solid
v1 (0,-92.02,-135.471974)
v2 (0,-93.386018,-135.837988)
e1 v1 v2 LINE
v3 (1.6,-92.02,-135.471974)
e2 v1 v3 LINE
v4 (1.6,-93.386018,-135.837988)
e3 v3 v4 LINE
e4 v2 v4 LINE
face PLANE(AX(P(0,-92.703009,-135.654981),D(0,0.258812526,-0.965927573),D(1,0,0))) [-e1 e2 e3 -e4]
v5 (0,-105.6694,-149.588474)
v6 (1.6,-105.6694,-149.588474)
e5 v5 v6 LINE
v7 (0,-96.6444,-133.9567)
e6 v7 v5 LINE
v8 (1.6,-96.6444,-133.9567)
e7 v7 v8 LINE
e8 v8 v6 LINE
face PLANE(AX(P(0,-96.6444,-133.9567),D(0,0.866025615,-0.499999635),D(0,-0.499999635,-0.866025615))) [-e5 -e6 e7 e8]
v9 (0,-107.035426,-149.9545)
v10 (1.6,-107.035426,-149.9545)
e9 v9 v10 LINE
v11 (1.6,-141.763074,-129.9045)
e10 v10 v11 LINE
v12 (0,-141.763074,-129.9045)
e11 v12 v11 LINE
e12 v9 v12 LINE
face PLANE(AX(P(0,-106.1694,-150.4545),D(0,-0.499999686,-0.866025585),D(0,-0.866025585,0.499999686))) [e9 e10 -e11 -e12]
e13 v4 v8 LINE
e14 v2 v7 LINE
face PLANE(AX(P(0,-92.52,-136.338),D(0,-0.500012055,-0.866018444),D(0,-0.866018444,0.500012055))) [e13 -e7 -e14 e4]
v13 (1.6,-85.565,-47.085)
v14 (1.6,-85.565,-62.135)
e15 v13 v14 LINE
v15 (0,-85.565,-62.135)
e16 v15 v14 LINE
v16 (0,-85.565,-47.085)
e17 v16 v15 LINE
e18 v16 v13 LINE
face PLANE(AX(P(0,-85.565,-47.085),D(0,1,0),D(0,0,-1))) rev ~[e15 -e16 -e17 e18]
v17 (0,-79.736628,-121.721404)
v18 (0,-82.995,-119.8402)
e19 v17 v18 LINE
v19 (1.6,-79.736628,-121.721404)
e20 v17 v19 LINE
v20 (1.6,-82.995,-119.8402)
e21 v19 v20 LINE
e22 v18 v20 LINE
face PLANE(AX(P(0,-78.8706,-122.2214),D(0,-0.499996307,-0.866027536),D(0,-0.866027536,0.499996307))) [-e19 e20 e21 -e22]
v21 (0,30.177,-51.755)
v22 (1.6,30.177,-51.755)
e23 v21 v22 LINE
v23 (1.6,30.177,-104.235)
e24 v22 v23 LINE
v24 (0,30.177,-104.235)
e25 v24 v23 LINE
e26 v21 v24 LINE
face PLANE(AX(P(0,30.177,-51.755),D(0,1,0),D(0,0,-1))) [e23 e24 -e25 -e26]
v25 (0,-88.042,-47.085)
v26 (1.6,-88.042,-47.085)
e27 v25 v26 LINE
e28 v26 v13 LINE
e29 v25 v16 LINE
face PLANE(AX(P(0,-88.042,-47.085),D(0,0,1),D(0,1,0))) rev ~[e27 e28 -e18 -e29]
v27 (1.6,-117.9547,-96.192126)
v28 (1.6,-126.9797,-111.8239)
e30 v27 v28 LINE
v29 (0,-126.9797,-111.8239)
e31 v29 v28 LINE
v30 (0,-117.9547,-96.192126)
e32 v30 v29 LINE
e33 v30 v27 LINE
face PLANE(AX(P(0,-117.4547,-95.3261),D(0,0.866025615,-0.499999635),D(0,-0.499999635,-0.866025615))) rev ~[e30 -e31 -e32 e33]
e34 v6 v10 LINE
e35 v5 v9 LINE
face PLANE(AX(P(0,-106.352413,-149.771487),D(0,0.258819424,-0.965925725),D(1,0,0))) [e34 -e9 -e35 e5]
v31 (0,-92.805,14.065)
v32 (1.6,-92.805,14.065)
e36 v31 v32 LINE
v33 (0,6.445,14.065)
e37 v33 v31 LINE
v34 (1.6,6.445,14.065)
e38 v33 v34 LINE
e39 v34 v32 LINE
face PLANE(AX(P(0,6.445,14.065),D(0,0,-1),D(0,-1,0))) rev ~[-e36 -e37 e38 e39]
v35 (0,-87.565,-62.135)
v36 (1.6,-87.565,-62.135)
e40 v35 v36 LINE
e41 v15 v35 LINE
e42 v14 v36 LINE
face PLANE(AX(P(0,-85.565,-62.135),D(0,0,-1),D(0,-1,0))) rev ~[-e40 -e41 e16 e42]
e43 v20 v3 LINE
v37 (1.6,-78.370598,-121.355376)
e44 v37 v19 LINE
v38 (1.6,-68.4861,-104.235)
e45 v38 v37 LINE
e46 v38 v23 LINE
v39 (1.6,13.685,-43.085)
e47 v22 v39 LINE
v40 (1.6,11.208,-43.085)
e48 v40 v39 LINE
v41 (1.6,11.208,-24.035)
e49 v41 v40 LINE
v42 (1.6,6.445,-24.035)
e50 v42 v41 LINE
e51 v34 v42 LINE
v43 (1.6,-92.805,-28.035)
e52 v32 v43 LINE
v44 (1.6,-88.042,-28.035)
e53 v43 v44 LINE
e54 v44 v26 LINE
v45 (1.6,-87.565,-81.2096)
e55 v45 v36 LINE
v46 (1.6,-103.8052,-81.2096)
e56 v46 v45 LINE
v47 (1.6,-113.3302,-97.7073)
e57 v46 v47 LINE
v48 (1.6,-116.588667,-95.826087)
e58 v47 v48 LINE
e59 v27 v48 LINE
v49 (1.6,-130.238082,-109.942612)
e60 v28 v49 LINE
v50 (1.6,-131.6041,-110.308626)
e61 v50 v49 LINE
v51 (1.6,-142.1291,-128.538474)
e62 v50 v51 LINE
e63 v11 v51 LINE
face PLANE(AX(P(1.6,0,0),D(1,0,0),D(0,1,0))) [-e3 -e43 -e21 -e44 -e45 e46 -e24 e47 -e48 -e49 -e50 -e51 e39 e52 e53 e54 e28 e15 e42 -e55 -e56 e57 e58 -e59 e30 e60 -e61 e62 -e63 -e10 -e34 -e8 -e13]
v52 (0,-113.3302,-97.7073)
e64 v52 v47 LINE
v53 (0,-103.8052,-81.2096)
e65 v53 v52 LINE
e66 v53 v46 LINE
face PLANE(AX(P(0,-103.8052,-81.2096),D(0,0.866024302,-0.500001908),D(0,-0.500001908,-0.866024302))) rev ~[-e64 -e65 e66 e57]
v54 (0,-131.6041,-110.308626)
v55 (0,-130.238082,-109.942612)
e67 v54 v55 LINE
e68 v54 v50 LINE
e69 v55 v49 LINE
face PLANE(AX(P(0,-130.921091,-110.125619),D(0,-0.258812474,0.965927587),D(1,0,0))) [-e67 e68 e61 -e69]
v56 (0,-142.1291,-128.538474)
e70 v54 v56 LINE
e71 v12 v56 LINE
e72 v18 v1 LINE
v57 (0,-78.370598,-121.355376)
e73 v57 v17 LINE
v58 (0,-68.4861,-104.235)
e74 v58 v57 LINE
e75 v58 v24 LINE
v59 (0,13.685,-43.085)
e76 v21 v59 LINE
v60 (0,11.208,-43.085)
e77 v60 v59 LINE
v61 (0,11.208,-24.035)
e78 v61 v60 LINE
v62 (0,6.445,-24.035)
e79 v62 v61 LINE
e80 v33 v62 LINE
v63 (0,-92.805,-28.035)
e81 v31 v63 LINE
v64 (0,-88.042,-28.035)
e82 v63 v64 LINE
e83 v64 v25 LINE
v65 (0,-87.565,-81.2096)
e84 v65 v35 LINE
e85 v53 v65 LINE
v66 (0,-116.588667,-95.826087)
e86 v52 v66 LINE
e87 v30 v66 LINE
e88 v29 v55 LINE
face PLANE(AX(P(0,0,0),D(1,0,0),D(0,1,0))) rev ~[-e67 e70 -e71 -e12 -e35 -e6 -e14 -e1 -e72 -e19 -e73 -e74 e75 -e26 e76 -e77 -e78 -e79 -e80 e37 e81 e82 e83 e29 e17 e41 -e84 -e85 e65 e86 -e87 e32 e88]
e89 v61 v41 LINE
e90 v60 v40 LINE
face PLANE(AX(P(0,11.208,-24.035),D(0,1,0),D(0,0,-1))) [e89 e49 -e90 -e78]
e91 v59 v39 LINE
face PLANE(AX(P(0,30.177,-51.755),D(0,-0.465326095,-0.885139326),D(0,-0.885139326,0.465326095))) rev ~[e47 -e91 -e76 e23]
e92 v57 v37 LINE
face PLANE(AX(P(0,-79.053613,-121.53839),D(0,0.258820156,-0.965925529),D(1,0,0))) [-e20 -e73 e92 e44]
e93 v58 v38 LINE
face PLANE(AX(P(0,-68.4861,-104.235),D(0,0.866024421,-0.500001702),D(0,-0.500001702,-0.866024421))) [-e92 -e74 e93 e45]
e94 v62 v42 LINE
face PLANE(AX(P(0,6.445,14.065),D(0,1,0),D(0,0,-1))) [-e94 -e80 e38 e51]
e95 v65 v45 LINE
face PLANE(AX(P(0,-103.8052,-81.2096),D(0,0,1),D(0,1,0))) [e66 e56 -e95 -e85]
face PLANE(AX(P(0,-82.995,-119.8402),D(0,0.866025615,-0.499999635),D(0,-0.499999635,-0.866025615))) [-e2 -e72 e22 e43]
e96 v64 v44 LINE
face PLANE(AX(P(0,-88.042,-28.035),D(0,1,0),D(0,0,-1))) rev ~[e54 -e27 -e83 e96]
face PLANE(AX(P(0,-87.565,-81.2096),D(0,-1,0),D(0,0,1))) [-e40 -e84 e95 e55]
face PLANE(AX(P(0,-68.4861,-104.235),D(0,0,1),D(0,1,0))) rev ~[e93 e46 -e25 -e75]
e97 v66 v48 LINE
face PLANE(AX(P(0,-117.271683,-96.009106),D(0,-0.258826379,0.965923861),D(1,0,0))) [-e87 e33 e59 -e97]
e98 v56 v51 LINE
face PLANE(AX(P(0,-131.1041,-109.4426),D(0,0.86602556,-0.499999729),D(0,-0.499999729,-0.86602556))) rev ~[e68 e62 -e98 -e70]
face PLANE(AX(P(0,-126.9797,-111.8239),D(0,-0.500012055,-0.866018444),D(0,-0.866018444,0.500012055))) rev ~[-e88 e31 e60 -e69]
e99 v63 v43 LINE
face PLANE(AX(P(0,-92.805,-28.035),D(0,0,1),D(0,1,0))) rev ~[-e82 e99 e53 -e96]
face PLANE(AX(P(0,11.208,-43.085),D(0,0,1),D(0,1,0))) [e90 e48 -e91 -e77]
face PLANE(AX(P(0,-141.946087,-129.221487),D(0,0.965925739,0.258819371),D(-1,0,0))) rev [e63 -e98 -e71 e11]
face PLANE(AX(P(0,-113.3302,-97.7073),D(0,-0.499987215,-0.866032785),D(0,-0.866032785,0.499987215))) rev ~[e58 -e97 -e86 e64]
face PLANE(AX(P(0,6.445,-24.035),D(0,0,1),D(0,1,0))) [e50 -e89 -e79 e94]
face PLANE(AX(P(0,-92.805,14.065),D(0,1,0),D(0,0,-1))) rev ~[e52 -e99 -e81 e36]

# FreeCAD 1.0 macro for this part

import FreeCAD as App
import Part
import Sketcher
from FreeCAD import Vector
Q = App.Units.Quantity


def edges_at(feature, points):
    """Names of the edges that pass closest to the given points."""
    edges = feature.Shape.Edges
    near = lambda p: min(range(len(edges)), key=lambda i: edges[i].distToShape(Part.Vertex(*p))[0])
    return sorted({f"Edge{near(p) + 1}" for p in points})


def add_polygon(sketch, points):
    """Adds a closed chain of lines whose ends are joined by coincident constraints."""
    first, n = sketch.GeometryCount, len(points)
    for a, b in zip(points, points[1:] + points[:1]):
        sketch.addGeometry(Part.LineSegment(App.Vector(*a, 0), App.Vector(*b, 0)), False)
    for i in range(n):
        sketch.addConstraint(Sketcher.Constraint("Coincident", first + i, 2, first + (i + 1) % n, 1))

doc = App.newDocument("Part")
params = doc.addObject("Spreadsheet::Sheet", "Params")
for row, (alias, value) in enumerate([
    ("sketch1_height", "1.5 in"),
    ("sketch1_height2", "0.75 in"),
    ("sketch1_length", "0.75 in"),
    ("sketch1_length2", "0.1875 in"),
    ("pad1_length", "0.0629921 in"),
    ("chamfer_size", "1 mm"),
], start=1):
    params.set(f"A{row}", alias)
    params.set(f"B{row}", "=" + value)
    params.setAlias(f"B{row}", alias)

body = doc.addObject("PartDesign::Body", "Body")

# Sketch on YZ plane
sketch1 = body.newObject("Sketcher::SketchObject", "Sketch")
sketch1.AttachmentSupport = (doc.getObject("YZ_Plane"), [""])
sketch1.MapMode = "FlatFace"
add_polygon(sketch1, [(6.4, -24), (6.4, 14.1), (-92.8, 14.1), (-92.8, -28), (-88, -28), (-88, -47.1), (-85.6, -47.1), (-85.6, -62.1), (-87.6, -62.1), (-87.6, -81.2), (-103.8, -81.2), (-113.3, -97.7), (-117.5, -95.3), (-127, -111.8), (-131.1, -109.4), (-142.6, -129.4), (-106.2, -150.5), (-96.6, -134), (-92.5, -136.3), (-83, -119.8), (-78.9, -122.2), (-68.5, -104.2), (30.2, -104.2), (30.2, -51.8), (13.7, -43.1), (11.2, -43.1), (11.2, -24)])  # lines 0-26
sketch1.addConstraint(Sketcher.Constraint("Vertical", 0))
sketch1.addConstraint(Sketcher.Constraint("Horizontal", 1))
sketch1.addConstraint(Sketcher.Constraint("Vertical", 2))
sketch1.addConstraint(Sketcher.Constraint("Horizontal", 3))
sketch1.addConstraint(Sketcher.Constraint("Vertical", 4))
sketch1.addConstraint(Sketcher.Constraint("Horizontal", 5))
sketch1.addConstraint(Sketcher.Constraint("Vertical", 6))
sketch1.addConstraint(Sketcher.Constraint("Horizontal", 7))
sketch1.addConstraint(Sketcher.Constraint("Vertical", 8))
sketch1.addConstraint(Sketcher.Constraint("Horizontal", 9))
sketch1.addConstraint(Sketcher.Constraint("Horizontal", 21))
sketch1.addConstraint(Sketcher.Constraint("Vertical", 22))
sketch1.addConstraint(Sketcher.Constraint("Horizontal", 24))
sketch1.addConstraint(Sketcher.Constraint("Vertical", 25))
sketch1.addConstraint(Sketcher.Constraint("Horizontal", 26))
sketch1.addConstraint(Sketcher.Constraint("Perpendicular", 10, 11))
sketch1.addConstraint(Sketcher.Constraint("Perpendicular", 11, 12))
sketch1.addConstraint(Sketcher.Constraint("Perpendicular", 12, 13))
sketch1.addConstraint(Sketcher.Constraint("Perpendicular", 13, 14))
sketch1.addConstraint(Sketcher.Constraint("Perpendicular", 14, 15))
sketch1.addConstraint(Sketcher.Constraint("Perpendicular", 15, 16))
sketch1.addConstraint(Sketcher.Constraint("Perpendicular", 16, 17))
sketch1.addConstraint(Sketcher.Constraint("Perpendicular", 17, 18))
sketch1.addConstraint(Sketcher.Constraint("Perpendicular", 18, 19))
sketch1.addConstraint(Sketcher.Constraint("Perpendicular", 19, 20))
sketch1.addConstraint(Sketcher.Constraint("Equal", 5, 24))
sketch1.addConstraint(Sketcher.Constraint("Equal", 3, 26))
sketch1.addConstraint(Sketcher.Constraint("Equal", 4, 25))
sketch1.addConstraint(Sketcher.Constraint("Equal", 10, 12))
sketch1.addConstraint(Sketcher.Constraint("Equal", 11, 13))
sketch1.addConstraint(Sketcher.Constraint("Equal", 12, 16))
sketch1.addConstraint(Sketcher.Constraint("Equal", 13, 17))
sketch1.addConstraint(Sketcher.Constraint("Equal", 16, 18))
sketch1.addConstraint(Sketcher.Constraint("Equal", 17, 19))
sketch1.addConstraint(Sketcher.Constraint("DistanceY", 0, 1, 0, 2, Q("1.5 in")))
sketch1.addConstraint(Sketcher.Constraint("Angle", 10, Q("-120.0001 deg")))
sketch1.addConstraint(Sketcher.Constraint("DistanceY", 6, 2, 1, 2, Q("3 in")))
sketch1.addConstraint(Sketcher.Constraint("DistanceY", 4, 2, 4, 1, Q("0.75 in")))
sketch1.addConstraint(Sketcher.Constraint("Distance", 10, Q("0.75 in")))
sketch1.addConstraint(Sketcher.Constraint("Distance", 11, Q("0.1875 in")))
sketch1.addConstraint(Sketcher.Constraint("DistanceY", 11, 2, -1, 1, Q("3.753 in")))
sketch1.addConstraint(Sketcher.Constraint("DistanceY", 10, 2, 4, 2, Q("1.993 in")))
sketch1.addConstraint(Sketcher.Constraint("DistanceX", 1, 2, 1, 1, 99.25))
sketch1.addConstraint(Sketcher.Constraint("DistanceX", 3, 1, 3, 2, 4.763))
sketch1.addConstraint(Sketcher.Constraint("DistanceX", 5, 1, 5, 2, 2.477))
sketch1.addConstraint(Sketcher.Constraint("DistanceX", 7, 2, 7, 1, 2.0))
sketch1.addConstraint(Sketcher.Constraint("DistanceX", 9, 2, 9, 1, 16.2402))
sketch1.addConstraint(Sketcher.Constraint("DistanceX", 21, 1, 21, 2, 98.663))
sketch1.addConstraint(Sketcher.Constraint("DistanceY", 2, 2, 2, 1, 42.1))
sketch1.addConstraint(Sketcher.Constraint("DistanceY", 22, 1, 22, 2, 52.48))
sketch1.addConstraint(Sketcher.Constraint("DistanceX", 5, 2, -1, 1, Q("3.3687 in")))
sketch1.addConstraint(Sketcher.Constraint("DistanceX", 15, 2, -1, 1, Q("4.1799 in")))
sketch1.addConstraint(Sketcher.Constraint("DistanceY", 15, 2, -1, 1, Q("5.9234 in")))
sketch1.addConstraint(Sketcher.Constraint("DistanceX", 20, 2, -1, 1, Q("2.6963 in")))
sketch1.setExpression("Constraints[61]", "Params.sketch1_height")
sketch1.setExpression("Constraints[64]", "Params.sketch1_height2")
sketch1.setExpression("Constraints[65]", "Params.sketch1_length")
sketch1.setExpression("Constraints[66]", "Params.sketch1_length2")
pad1 = body.newObject("PartDesign::Pad", "Pad")
pad1.Profile = sketch1
pad1.setExpression("Length", "Params.pad1_length")
doc.recompute()

chamfer = body.newObject("PartDesign::Chamfer", "Chamfer")
chamfer.Base = (pad1, edges_at(pad1, [
    (0.8, -117.455, -95.326),
    (0.8, -131.104, -109.443),
    (0.8, -142.629, -129.405),
    (0.8, -106.169, -150.454),
    (0.8, -92.52, -136.338),
    (0.8, -78.871, -122.221),
]))
chamfer.setExpression("Size", "Params.chamfer_size")

doc.recompute()
